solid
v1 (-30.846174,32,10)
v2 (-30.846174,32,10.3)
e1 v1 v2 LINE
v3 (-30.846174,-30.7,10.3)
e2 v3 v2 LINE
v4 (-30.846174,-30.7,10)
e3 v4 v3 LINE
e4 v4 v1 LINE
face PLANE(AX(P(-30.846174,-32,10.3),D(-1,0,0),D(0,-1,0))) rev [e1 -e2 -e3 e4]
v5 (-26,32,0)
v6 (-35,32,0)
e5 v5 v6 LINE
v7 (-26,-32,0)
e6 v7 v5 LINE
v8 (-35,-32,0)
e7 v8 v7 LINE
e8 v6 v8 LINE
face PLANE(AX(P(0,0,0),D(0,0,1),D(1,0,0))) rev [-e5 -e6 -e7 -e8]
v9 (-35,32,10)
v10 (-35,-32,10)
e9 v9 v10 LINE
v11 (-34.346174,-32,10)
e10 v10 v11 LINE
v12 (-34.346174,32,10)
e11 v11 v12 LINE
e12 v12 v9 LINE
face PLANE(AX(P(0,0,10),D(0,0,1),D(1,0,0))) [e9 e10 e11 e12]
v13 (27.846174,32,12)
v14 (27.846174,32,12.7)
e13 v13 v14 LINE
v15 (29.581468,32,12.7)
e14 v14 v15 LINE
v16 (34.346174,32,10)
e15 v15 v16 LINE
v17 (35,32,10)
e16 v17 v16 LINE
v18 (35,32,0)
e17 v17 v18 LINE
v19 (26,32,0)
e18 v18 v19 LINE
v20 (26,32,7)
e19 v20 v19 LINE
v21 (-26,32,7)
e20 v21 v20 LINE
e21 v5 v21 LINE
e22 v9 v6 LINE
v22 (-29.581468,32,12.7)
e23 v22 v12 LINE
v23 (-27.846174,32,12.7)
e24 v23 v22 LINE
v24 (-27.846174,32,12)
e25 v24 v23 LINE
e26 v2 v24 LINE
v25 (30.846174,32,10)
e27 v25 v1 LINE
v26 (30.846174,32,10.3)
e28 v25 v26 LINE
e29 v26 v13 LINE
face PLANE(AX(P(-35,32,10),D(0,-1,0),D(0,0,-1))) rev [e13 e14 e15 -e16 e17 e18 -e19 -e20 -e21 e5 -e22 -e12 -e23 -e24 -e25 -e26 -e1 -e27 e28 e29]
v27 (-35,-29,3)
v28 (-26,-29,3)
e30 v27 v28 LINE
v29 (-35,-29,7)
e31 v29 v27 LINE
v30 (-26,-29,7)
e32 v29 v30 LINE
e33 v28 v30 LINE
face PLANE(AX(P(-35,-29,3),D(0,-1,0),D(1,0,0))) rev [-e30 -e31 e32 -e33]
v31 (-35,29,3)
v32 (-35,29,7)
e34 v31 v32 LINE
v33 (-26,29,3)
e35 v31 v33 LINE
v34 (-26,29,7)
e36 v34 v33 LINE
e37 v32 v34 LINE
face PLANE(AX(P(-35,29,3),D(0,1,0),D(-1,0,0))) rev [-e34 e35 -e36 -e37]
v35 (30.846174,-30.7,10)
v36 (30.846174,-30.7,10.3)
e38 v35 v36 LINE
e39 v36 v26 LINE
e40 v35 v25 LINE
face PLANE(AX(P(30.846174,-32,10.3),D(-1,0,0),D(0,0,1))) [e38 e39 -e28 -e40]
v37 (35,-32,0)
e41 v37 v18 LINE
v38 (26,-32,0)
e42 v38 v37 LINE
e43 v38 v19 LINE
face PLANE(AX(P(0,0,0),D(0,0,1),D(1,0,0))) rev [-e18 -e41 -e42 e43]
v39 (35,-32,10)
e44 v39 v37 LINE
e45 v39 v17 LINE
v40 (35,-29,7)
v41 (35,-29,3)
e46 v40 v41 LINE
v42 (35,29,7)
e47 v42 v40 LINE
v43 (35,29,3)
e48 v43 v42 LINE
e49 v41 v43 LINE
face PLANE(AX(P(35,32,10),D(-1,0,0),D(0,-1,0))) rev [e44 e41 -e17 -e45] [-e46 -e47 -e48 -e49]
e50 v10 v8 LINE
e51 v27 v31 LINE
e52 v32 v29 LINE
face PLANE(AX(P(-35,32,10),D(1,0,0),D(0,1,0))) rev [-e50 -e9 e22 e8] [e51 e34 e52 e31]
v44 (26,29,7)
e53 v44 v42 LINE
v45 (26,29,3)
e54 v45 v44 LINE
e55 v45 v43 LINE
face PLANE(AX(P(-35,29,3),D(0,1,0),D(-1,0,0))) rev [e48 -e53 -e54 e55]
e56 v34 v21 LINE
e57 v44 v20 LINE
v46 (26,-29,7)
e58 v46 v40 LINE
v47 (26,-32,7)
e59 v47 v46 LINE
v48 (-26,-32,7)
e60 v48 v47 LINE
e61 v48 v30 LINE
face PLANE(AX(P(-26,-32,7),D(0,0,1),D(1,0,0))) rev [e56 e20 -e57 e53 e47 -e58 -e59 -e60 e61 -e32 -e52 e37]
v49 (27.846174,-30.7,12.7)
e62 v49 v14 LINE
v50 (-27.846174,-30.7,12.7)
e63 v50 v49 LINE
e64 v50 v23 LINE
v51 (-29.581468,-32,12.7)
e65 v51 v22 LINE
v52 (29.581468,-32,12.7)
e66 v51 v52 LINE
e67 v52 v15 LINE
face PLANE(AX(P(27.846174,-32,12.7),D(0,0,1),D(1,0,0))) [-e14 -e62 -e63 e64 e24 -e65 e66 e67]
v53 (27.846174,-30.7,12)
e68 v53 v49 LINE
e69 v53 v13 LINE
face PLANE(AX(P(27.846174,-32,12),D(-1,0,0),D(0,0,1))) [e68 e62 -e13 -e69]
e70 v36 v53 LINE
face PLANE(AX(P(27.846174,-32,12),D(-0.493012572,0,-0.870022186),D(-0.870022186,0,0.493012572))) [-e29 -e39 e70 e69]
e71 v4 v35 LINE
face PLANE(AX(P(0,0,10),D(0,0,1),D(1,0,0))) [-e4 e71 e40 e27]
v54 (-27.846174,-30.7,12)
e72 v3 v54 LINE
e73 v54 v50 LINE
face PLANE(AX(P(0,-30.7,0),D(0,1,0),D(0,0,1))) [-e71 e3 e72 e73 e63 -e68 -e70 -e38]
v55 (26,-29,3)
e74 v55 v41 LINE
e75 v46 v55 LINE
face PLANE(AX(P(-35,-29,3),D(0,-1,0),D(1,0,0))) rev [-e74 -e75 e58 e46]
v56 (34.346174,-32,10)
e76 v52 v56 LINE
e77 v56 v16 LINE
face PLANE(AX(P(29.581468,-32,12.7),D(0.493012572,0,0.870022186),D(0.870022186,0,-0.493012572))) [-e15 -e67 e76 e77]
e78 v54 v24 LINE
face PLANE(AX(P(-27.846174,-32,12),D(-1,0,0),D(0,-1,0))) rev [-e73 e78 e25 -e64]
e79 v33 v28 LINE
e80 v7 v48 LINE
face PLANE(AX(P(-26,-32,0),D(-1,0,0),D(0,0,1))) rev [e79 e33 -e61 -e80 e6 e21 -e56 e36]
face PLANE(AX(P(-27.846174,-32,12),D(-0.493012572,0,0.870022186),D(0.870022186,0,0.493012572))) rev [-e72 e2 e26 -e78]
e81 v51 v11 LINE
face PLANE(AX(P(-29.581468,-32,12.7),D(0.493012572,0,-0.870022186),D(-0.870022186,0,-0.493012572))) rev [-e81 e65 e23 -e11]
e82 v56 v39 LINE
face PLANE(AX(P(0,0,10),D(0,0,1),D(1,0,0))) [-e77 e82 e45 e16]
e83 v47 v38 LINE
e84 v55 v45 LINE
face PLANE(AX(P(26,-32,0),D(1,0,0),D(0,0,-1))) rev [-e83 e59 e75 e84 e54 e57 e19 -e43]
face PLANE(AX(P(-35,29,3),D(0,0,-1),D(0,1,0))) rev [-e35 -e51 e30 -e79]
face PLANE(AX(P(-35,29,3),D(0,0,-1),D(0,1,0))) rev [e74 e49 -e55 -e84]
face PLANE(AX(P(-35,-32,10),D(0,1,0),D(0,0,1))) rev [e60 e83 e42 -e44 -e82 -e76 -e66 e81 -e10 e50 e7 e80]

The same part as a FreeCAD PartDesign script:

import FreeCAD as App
import Part
import Sketcher
from FreeCAD import Vector
Q = App.Units.Quantity


def add_polygon(sketch, points):
    """Adds a closed chain of lines whose ends are joined by coincident constraints."""
    first, n = sketch.GeometryCount, len(points)
    for a, b in zip(points, points[1:] + points[:1]):
        sketch.addGeometry(Part.LineSegment(App.Vector(*a, 0), App.Vector(*b, 0)), False)
    for i in range(n):
        sketch.addConstraint(Sketcher.Constraint("Coincident", first + i, 2, first + (i + 1) % n, 1))

doc = App.newDocument("Part")
body = doc.addObject("PartDesign::Body", "Body")

# Sketch on XY plane
sketch1 = body.newObject("Sketcher::SketchObject", "Sketch")
sketch1.AttachmentSupport = (doc.getObject("XY_Plane"), [""])
sketch1.MapMode = "FlatFace"
add_polygon(sketch1, [(-35, 32), (-35, -32), (35, -32), (35, 32)])  # lines 0-3
sketch1.addConstraint([
    Sketcher.Constraint("Vertical", 0),
    Sketcher.Constraint("Horizontal", 1),
    Sketcher.Constraint("Vertical", 2),
    Sketcher.Constraint("Horizontal", 3),
    Sketcher.Constraint("Symmetric", 0, 2, 2, 2, -1, 1),
    Sketcher.Constraint("DistanceX", 1, 1, 1, 2, Q("70 mm")),
    Sketcher.Constraint("DistanceY", 0, 2, 0, 1, Q("64 mm")),
])
pad1 = body.newObject("PartDesign::Pad", "Pad")
pad1.Profile = sketch1
pad1.Length = 10

# Sketch on XZ plane
sketch2 = body.newObject("Sketcher::SketchObject", "Sketch001")
sketch2.AttachmentSupport = (doc.getObject("XZ_Plane"), [""])
sketch2.MapMode = "FlatFace"
sketch2.AttachmentOffset = App.Placement(Vector(0, 0, -32), App.Rotation())
add_polygon(sketch2, [(27.85, 12.7), (29.58, 12.7), (34.35, 10), (30.85, 10), (30.85, 10.3), (27.85, 12)])  # lines 0-5
sketch2.addConstraint([
    Sketcher.Constraint("Horizontal", 0),
    Sketcher.Constraint("Horizontal", 2),
    Sketcher.Constraint("Vertical", 3),
    Sketcher.Constraint("Vertical", 5),
    Sketcher.Constraint("Parallel", 1, 4),
    Sketcher.Constraint("DistanceX", 2, 2, 2, 1, Q("3.5 mm")),
    Sketcher.Constraint("DistanceY", 3, 1, 3, 2, Q("0.3 mm")),
    Sketcher.Constraint("DistanceY", 5, 1, 5, 2, Q("0.7 mm")),
    Sketcher.Constraint("DistanceY", -1, 1, 1, 2, Q("10 mm")),
    Sketcher.Constraint("DistanceY", -1, 1, 4, 2, Q("12 mm")),
    Sketcher.Constraint("DistanceX", 4, 2, 3, 2, Q("3 mm")),
    Sketcher.Constraint("DistanceX", -1, 1, 0, 2, Q("29.581468 mm")),
])
pad2 = body.newObject("PartDesign::Pad", "Pad001")
pad2.Profile = sketch2
pad2.Length = 64
doc.recompute()

mirrored = body.newObject("PartDesign::Mirrored", "Mirrored")
mirrored.Originals = [pad2]
mirrored.MirrorPlane = (doc.getObject("YZ_Plane"), [""])
body.Tip = mirrored

# Sketch on XZ plane
sketch3 = body.newObject("Sketcher::SketchObject", "Sketch002")
sketch3.AttachmentSupport = (doc.getObject("XZ_Plane"), [""])
sketch3.MapMode = "FlatFace"
sketch3.AttachmentOffset = App.Placement(Vector(0, 0, 32), App.Rotation())
add_polygon(sketch3, [(-27.85, 12.7), (-27.85, 12), (-30.85, 10.3), (-30.85, 10), (30.85, 10), (30.85, 10.3), (27.85, 12), (27.85, 12.7)])  # lines 0-7
sketch3.addConstraint([
    Sketcher.Constraint("Vertical", 0),
    Sketcher.Constraint("Vertical", 2),
    Sketcher.Constraint("Horizontal", 3),
    Sketcher.Constraint("Vertical", 4),
    Sketcher.Constraint("Vertical", 6),
    Sketcher.Constraint("Horizontal", 7),
    Sketcher.Constraint("Symmetric", 1, 2, 4, 2, -2),
    Sketcher.Constraint("Symmetric", 0, 2, 5, 2, -2),
    Sketcher.Constraint("DistanceY", 0, 2, 0, 1, Q("0.7 mm")),
    Sketcher.Constraint("DistanceY", 2, 2, 2, 1, Q("0.3 mm")),
    Sketcher.Constraint("DistanceY", -1, 1, 0, 2, Q("12 mm")),
    Sketcher.Constraint("DistanceY", -1, 1, 2, 2, Q("10 mm")),
    Sketcher.Constraint("DistanceX", 1, 2, 0, 2, Q("3 mm")),
    Sketcher.Constraint("DistanceX", 3, 1, 3, 2, Q("61.692347 mm")),
])
pad3 = body.newObject("PartDesign::Pad", "Pad002")
pad3.Profile = sketch3
pad3.Length = 1.3
pad3.Reversed = True

# Sketch on XZ plane
sketch4 = body.newObject("Sketcher::SketchObject", "Sketch003")
sketch4.AttachmentSupport = (doc.getObject("XZ_Plane"), [""])
sketch4.MapMode = "FlatFace"
sketch4.AttachmentOffset = App.Placement(Vector(0, 0, -32), App.Rotation())
add_polygon(sketch4, [(-26, 0), (-26, 7), (26, 7), (26, 0)])  # lines 0-3
sketch4.addConstraint([
    Sketcher.Constraint("Vertical", 0),
    Sketcher.Constraint("Horizontal", 1),
    Sketcher.Constraint("Vertical", 2),
    Sketcher.Constraint("Horizontal", 3),
    Sketcher.Constraint("Symmetric", 2, 2, 3, 2, -1, 1),
    Sketcher.Constraint("DistanceX", 1, 1, 1, 2, Q("52 mm")),
    Sketcher.Constraint("DistanceY", 0, 1, 0, 2, Q("7 mm")),
])
pocket1 = body.newObject("PartDesign::Pocket", "Pocket")
pocket1.Profile = sketch4
pocket1.Type = "ThroughAll"
pocket1.Reversed = True

# Sketch on YZ plane
sketch5 = body.newObject("Sketcher::SketchObject", "Sketch004")
sketch5.AttachmentSupport = (doc.getObject("YZ_Plane"), [""])
sketch5.MapMode = "FlatFace"
sketch5.AttachmentOffset = App.Placement(Vector(0, 0, 35), App.Rotation())
add_polygon(sketch5, [(29, 7), (-29, 7), (-29, 3), (29, 3)])  # lines 0-3
sketch5.addConstraint([
    Sketcher.Constraint("Horizontal", 0),
    Sketcher.Constraint("Vertical", 1),
    Sketcher.Constraint("Horizontal", 2),
    Sketcher.Constraint("Vertical", 3),
    Sketcher.Constraint("DistanceX", 0, 2, 0, 1, Q("58 mm")),
    Sketcher.Constraint("DistanceY", 1, 2, 1, 1, Q("4 mm")),
    Sketcher.Constraint("DistanceX", 0, 2, -1, 1, Q("29 mm")),
    Sketcher.Constraint("DistanceY", -1, 1, 0, 2, Q("7 mm")),
])
pocket2 = body.newObject("PartDesign::Pocket", "Pocket001")
pocket2.Profile = sketch5
pocket2.Type = "ThroughAll"

doc.recompute()
